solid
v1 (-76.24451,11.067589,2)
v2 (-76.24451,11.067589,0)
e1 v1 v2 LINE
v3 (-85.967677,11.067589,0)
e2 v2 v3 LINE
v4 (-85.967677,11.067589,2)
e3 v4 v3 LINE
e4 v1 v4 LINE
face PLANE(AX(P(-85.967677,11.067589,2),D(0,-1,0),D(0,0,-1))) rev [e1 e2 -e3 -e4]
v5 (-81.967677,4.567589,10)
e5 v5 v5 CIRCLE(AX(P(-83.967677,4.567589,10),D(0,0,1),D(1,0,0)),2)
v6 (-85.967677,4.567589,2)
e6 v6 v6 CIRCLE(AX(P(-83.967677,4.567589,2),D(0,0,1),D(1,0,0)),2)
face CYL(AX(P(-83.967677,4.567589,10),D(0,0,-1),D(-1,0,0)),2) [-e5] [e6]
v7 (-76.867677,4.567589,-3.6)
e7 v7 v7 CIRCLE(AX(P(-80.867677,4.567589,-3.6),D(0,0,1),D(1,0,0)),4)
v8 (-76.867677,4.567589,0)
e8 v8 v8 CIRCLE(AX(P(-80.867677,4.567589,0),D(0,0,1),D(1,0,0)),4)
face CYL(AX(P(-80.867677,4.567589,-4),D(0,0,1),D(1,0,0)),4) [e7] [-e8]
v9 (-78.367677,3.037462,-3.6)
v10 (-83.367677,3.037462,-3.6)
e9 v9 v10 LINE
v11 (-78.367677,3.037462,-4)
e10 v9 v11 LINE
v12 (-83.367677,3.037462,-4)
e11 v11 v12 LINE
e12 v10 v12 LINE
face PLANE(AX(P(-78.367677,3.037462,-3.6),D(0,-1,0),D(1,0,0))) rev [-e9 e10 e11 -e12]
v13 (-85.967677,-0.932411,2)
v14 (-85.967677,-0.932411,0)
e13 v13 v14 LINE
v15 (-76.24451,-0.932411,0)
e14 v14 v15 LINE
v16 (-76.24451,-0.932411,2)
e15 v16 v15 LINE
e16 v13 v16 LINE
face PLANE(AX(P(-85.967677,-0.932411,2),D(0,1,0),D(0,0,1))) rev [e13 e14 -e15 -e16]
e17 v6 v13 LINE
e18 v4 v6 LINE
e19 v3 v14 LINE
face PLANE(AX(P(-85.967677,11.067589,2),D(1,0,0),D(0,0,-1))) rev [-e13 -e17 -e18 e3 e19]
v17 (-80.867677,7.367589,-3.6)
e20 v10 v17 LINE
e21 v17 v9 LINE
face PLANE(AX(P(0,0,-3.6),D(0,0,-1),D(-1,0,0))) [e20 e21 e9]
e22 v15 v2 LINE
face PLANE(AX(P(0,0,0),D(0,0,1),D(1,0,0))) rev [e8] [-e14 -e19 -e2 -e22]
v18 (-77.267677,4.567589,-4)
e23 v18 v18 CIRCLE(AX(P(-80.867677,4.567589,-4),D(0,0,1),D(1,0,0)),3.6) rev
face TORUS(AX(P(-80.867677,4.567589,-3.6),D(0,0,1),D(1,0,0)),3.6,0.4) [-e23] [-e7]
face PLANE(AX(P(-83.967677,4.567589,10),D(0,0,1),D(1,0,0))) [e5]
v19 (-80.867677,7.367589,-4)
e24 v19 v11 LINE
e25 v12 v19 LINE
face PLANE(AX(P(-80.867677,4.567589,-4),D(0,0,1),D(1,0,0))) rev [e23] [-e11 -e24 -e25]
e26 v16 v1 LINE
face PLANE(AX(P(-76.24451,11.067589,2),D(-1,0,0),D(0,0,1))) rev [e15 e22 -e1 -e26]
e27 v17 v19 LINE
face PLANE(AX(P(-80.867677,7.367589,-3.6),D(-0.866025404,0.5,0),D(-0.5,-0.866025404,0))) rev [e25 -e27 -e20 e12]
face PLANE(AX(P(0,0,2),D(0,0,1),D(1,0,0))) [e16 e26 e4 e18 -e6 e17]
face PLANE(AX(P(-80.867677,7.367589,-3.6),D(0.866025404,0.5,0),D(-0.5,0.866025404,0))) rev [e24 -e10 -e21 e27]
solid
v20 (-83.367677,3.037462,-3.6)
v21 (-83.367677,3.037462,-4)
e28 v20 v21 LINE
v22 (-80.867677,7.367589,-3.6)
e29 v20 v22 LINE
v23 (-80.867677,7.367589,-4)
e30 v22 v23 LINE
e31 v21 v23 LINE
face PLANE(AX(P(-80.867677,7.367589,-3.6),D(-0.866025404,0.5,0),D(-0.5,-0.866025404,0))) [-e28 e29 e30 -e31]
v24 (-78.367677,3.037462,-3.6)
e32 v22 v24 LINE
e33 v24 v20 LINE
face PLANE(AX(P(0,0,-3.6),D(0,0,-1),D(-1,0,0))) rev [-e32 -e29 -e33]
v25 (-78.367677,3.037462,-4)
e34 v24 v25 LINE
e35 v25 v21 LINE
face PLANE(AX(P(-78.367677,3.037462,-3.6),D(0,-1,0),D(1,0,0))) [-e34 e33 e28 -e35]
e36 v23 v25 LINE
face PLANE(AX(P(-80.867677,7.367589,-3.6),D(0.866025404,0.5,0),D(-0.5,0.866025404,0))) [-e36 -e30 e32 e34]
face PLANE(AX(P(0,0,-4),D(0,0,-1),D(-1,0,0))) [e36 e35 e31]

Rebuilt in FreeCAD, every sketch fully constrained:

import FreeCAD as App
import Part
import Sketcher
from FreeCAD import Vector
Q = App.Units.Quantity


def edges_at(feature, points):
    """Names of the edges that pass closest to the given points."""
    edges = feature.Shape.Edges
    near = lambda p: min(range(len(edges)), key=lambda i: edges[i].distToShape(Part.Vertex(*p))[0])
    return sorted({f"Edge{near(p) + 1}" for p in points})


def add_polygon(sketch, points):
    """Adds a closed chain of lines whose ends are joined by coincident constraints."""
    first, n = sketch.GeometryCount, len(points)
    for a, b in zip(points, points[1:] + points[:1]):
        sketch.addGeometry(Part.LineSegment(App.Vector(*a, 0), App.Vector(*b, 0)), False)
    for i in range(n):
        sketch.addConstraint(Sketcher.Constraint("Coincident", first + i, 2, first + (i + 1) % n, 1))

doc = App.newDocument("Part")
params = doc.addObject("Spreadsheet::Sheet", "Params")
for row, (alias, value) in enumerate([
    ("sketch1_diameter", "8 mm"),
    ("pad1_length", "4 mm"),
    ("sketch2_height", "12 mm"),
    ("pad2_length", "2 mm"),
    ("fillet_radius", "0.4 mm"),
    ("sketch3_diameter", "4 mm"),
    ("pad3_length", "8 mm"),
    ("sketch4_width", "5 mm"),
    ("pocket1_length", "0.4 mm"),
    ("sketch5_width", "5 mm"),
    ("pad4_length", "0.4 mm"),
], start=1):
    params.set(f"A{row}", alias)
    params.set(f"B{row}", "=" + value)
    params.setAlias(f"B{row}", alias)

body = doc.addObject("PartDesign::Body", "Body")

# Sketch on XY plane
sketch1 = body.newObject("Sketcher::SketchObject", "Sketch")
sketch1.AttachmentSupport = (doc.getObject("XY_Plane"), [""])
sketch1.MapMode = "FlatFace"
sketch1.addGeometry(Part.Circle(Vector(-80.9, 4.6, 0), Vector(0, 0, 1), 4), False)
sketch1.addConstraint(Sketcher.Constraint("Diameter", 0, Q("8 mm")))
sketch1.addConstraint(Sketcher.Constraint("DistanceY", -1, 1, 0, 3, Q("4.567589 mm")))
sketch1.addConstraint(Sketcher.Constraint("DistanceX", 0, 3, -1, 1, Q("80.867677 mm")))
sketch1.setExpression("Constraints[0]", "Params.sketch1_diameter")
pad1 = body.newObject("PartDesign::Pad", "Pad")
pad1.Profile = sketch1
pad1.setExpression("Length", "Params.pad1_length")
pad1.Reversed = True

# Sketch on XY plane
sketch2 = body.newObject("Sketcher::SketchObject", "Sketch001")
sketch2.AttachmentSupport = (doc.getObject("XY_Plane"), [""])
sketch2.MapMode = "FlatFace"
add_polygon(sketch2, [(-86, 11), (-86, -1), (-76, -1), (-76, 11)])  # lines 0-3
sketch2.addConstraint(Sketcher.Constraint("Vertical", 0))
sketch2.addConstraint(Sketcher.Constraint("Horizontal", 1))
sketch2.addConstraint(Sketcher.Constraint("Vertical", 2))
sketch2.addConstraint(Sketcher.Constraint("Horizontal", 3))
sketch2.addConstraint(Sketcher.Constraint("DistanceY", 0, 2, 0, 1, Q("12 mm")))
sketch2.addConstraint(Sketcher.Constraint("DistanceX", 1, 1, 1, 2, Q("9.723167 mm")))
sketch2.addConstraint(Sketcher.Constraint("DistanceY", 0, 2, -1, 1, Q("0.932411 mm")))
sketch2.addConstraint(Sketcher.Constraint("DistanceX", 1, 2, -1, 1, Q("76.24451 mm")))
sketch2.setExpression("Constraints[8]", "Params.sketch2_height")
pad2 = body.newObject("PartDesign::Pad", "Pad001")
pad2.Profile = sketch2
pad2.setExpression("Length", "Params.pad2_length")
doc.recompute()

fillet = body.newObject("PartDesign::Fillet", "Fillet")
fillet.Base = (pad2, edges_at(pad2, [(-84.868, 4.568, -4)]))
fillet.setExpression("Radius", "Params.fillet_radius")

# Sketch on XY plane
sketch3 = body.newObject("Sketcher::SketchObject", "Sketch002")
sketch3.AttachmentSupport = (doc.getObject("XY_Plane"), [""])
sketch3.MapMode = "FlatFace"
sketch3.AttachmentOffset = App.Placement(Vector(0, 0, 2), App.Rotation())
sketch3.addGeometry(Part.Circle(Vector(-84, 4.6, 0), Vector(0, 0, 1), 2), False)
sketch3.addConstraint(Sketcher.Constraint("Diameter", 0, Q("4 mm")))
sketch3.addConstraint(Sketcher.Constraint("DistanceY", -1, 1, 0, 3, Q("4.567589 mm")))
sketch3.addConstraint(Sketcher.Constraint("DistanceX", 0, 3, -1, 1, Q("83.967677 mm")))
sketch3.setExpression("Constraints[0]", "Params.sketch3_diameter")
pad3 = body.newObject("PartDesign::Pad", "Pad002")
pad3.Profile = sketch3
pad3.setExpression("Length", "Params.pad3_length")

# Sketch on XY plane
sketch4 = body.newObject("Sketcher::SketchObject", "Sketch003")
sketch4.AttachmentSupport = (doc.getObject("XY_Plane"), [""])
sketch4.MapMode = "FlatFace"
sketch4.AttachmentOffset = App.Placement(Vector(0, 0, -4), App.Rotation())
add_polygon(sketch4, [(-78, 3), (-83, 3), (-81, 7)])  # lines 0-2
sketch4.addConstraint(Sketcher.Constraint("Horizontal", 0))
sketch4.addConstraint(Sketcher.Constraint("Equal", 1, 2))
sketch4.addConstraint(Sketcher.Constraint("DistanceX", 0, 2, 0, 1, Q("5 mm")))
sketch4.addConstraint(Sketcher.Constraint("Angle", 1, Q("60 deg")))
sketch4.addConstraint(Sketcher.Constraint("DistanceY", -1, 1, 1, 2, Q("7.367589 mm")))
sketch4.addConstraint(Sketcher.Constraint("DistanceX", 0, 2, -1, 1, Q("83.367677 mm")))
sketch4.setExpression("Constraints[5]", "Params.sketch4_width")
pocket1 = body.newObject("PartDesign::Pocket", "Pocket")
pocket1.Profile = sketch4
pocket1.setExpression("Length", "Params.pocket1_length")
pocket1.Reversed = True
body2 = doc.addObject("PartDesign::Body", "Body001")

# Sketch on XY plane
sketch5 = body2.newObject("Sketcher::SketchObject", "Sketch004")
sketch5.AttachmentSupport = (doc.getObject("XY_Plane001"), [""])
sketch5.MapMode = "FlatFace"
sketch5.AttachmentOffset = App.Placement(Vector(0, 0, -4), App.Rotation())
add_polygon(sketch5, [(-78, 3), (-83, 3), (-81, 7)])  # lines 0-2
sketch5.addConstraint(Sketcher.Constraint("Horizontal", 0))
sketch5.addConstraint(Sketcher.Constraint("Equal", 1, 2))
sketch5.addConstraint(Sketcher.Constraint("DistanceX", 0, 2, 0, 1, Q("5 mm")))
sketch5.addConstraint(Sketcher.Constraint("Angle", 1, Q("60 deg")))
sketch5.addConstraint(Sketcher.Constraint("DistanceY", -1, 1, 1, 2, Q("7.367589 mm")))
sketch5.addConstraint(Sketcher.Constraint("DistanceX", 0, 2, -1, 1, Q("83.367677 mm")))
sketch5.setExpression("Constraints[5]", "Params.sketch5_width")
pad4 = body2.newObject("PartDesign::Pad", "Pad003")
pad4.Profile = sketch5
pad4.setExpression("Length", "Params.pad4_length")

doc.recompute()
